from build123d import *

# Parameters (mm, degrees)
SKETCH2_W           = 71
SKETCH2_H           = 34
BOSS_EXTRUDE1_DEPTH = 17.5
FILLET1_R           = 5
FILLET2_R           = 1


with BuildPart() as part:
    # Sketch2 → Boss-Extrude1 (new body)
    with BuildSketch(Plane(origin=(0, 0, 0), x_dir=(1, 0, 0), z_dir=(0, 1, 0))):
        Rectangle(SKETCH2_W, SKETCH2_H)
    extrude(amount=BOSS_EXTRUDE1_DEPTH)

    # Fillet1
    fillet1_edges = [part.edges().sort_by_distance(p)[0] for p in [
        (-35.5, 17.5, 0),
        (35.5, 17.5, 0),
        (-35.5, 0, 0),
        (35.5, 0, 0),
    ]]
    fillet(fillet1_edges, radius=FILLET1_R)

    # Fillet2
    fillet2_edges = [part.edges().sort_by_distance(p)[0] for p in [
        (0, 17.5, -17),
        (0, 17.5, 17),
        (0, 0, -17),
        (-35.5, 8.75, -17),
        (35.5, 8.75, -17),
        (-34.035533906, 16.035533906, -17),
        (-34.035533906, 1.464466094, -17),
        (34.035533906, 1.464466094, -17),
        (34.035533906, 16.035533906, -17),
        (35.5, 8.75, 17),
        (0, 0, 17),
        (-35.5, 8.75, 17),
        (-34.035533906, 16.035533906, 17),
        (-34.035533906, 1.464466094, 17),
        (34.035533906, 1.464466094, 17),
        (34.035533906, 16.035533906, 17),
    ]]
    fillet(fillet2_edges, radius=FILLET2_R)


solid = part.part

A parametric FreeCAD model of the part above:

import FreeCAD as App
import Part
import Sketcher
from FreeCAD import Vector


def edges_at(feature, points):
    """Names of the edges that pass closest to the given points."""
    edges = feature.Shape.Edges
    near = lambda p: min(range(len(edges)), key=lambda i: edges[i].distToShape(Part.Vertex(*p))[0])
    return sorted({f"Edge{near(p) + 1}" for p in points})


def add_polygon(sketch, points):
    """Adds a closed chain of lines whose ends are joined by coincident constraints."""
    first, n = sketch.GeometryCount, len(points)
    for a, b in zip(points, points[1:] + points[:1]):
        sketch.addGeometry(Part.LineSegment(App.Vector(*a, 0), App.Vector(*b, 0)), False)
    for i in range(n):
        sketch.addConstraint(Sketcher.Constraint("Coincident", first + i, 2, first + (i + 1) % n, 1))

doc = App.newDocument("Part")
params = doc.addObject("Spreadsheet::Sheet", "Params")
for row, (alias, value) in enumerate([
    ("sketch1_width", "71 mm"),
    ("sketch1_height", "34 mm"),
    ("pad1_length", "17.5 mm"),
    ("fillet_radius", "5 mm"),
    ("fillet2_radius", "1 mm"),
], start=1):
    params.set(f"A{row}", alias)
    params.set(f"B{row}", "=" + value)
    params.setAlias(f"B{row}", alias)

body = doc.addObject("PartDesign::Body", "Body")

# Sketch on XZ plane
sketch1 = doc.addObject("Sketcher::SketchObject", "Sketch")
body.addObject(sketch1)
sketch1.AttachmentSupport = (doc.XZ_Plane, [""])
sketch1.MapMode = "FlatFace"
add_polygon(sketch1, [(-36, -17), (-36, 17), (36, 17), (36, -17)])  # lines 0-3
sketch1.addConstraint([
    Sketcher.Constraint("Vertical", 0),
    Sketcher.Constraint("Horizontal", 1),
    Sketcher.Constraint("Vertical", 2),
    Sketcher.Constraint("Horizontal", 3),
    Sketcher.Constraint("Symmetric", 0, 2, 2, 2, -1, 1),
    Sketcher.Constraint("DistanceX", 1, 1, 1, 2, 71.0),
    Sketcher.Constraint("DistanceY", 0, 1, 0, 2, 34.0),
])
sketch1.setExpression("Constraints[9]", "Params.sketch1_width")
sketch1.setExpression("Constraints[10]", "Params.sketch1_height")
pad1 = doc.addObject("PartDesign::Pad", "Pad")
body.addObject(pad1)
pad1.Profile = sketch1
pad1.setExpression("Length", "Params.pad1_length")
pad1.Reversed = True
doc.recompute()

fillet = doc.addObject("PartDesign::Fillet", "Fillet")
body.addObject(fillet)
fillet.Base = (pad1, edges_at(pad1, [
    (-35.5, 17.5, 0),
    (35.5, 17.5, 0),
    (-35.5, 0, 0),
    (35.5, 0, 0),
]))
fillet.setExpression("Radius", "Params.fillet_radius")
doc.recompute()

fillet2 = doc.addObject("PartDesign::Fillet", "Fillet001")
body.addObject(fillet2)
fillet2.Base = (fillet, edges_at(fillet, [
    (0, 17.5, -17),
    (0, 17.5, 17),
    (0, 0, -17),
    (-35.5, 8.75, -17),
    (35.5, 8.75, -17),
    (-34.036, 16.036, -17),
    (-34.036, 1.464, -17),
    (34.036, 1.464, -17),
    (34.036, 16.036, -17),
    (35.5, 8.75, 17),
    (0, 0, 17),
    (-35.5, 8.75, 17),
    (-34.036, 16.036, 17),
    (-34.036, 1.464, 17),
    (34.036, 1.464, 17),
    (34.036, 16.036, 17),
]))
fillet2.setExpression("Radius", "Params.fillet2_radius")

doc.recompute()
